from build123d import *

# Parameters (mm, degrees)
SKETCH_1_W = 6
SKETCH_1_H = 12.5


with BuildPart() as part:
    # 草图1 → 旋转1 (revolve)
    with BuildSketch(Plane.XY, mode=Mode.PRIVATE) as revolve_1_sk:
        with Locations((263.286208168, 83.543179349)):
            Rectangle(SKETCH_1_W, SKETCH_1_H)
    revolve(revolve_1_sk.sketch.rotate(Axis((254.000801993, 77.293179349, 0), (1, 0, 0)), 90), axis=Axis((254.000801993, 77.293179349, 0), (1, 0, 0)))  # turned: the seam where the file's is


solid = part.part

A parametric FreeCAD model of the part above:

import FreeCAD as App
import Part
import Sketcher
from FreeCAD import Vector
Q = App.Units.Quantity


def add_polygon(sketch, points):
    """Adds a closed chain of lines whose ends are joined by coincident constraints."""
    first, n = sketch.GeometryCount, len(points)
    for a, b in zip(points, points[1:] + points[:1]):
        sketch.addGeometry(Part.LineSegment(App.Vector(*a, 0), App.Vector(*b, 0)), False)
    for i in range(n):
        sketch.addConstraint(Sketcher.Constraint("Coincident", first + i, 2, first + (i + 1) % n, 1))

doc = App.newDocument("Part")
body = doc.addObject("PartDesign::Body", "Body")

# Sketch on XY plane
sketch1 = doc.addObject("Sketcher::SketchObject", "Sketch")
body.addObject(sketch1)
sketch1.AttachmentSupport = (doc.XY_Plane, [""])
sketch1.MapMode = "FlatFace"
add_polygon(sketch1, [(260, 90), (260, 77), (266, 77), (266, 90)])  # lines 0-3
sketch1.addGeometry(Part.LineSegment(Vector(260, 77, 0), Vector(266, 77, 0)), True)  # axis
sketch1.addConstraint([
    Sketcher.Constraint("Vertical", 0),
    Sketcher.Constraint("Horizontal", 1),
    Sketcher.Constraint("Vertical", 2),
    Sketcher.Constraint("Horizontal", 3),
    Sketcher.Constraint("Horizontal", 4),
    Sketcher.Constraint("Coincident", 4, 1, 0, 2),
    Sketcher.Constraint("Vertical", 2, 2, 4, 2),
    Sketcher.Constraint("DistanceX", 1, 1, 1, 2, Q("6 mm")),
    Sketcher.Constraint("DistanceY", 0, 2, 0, 1, Q("12.5 mm")),
    Sketcher.Constraint("DistanceX", -1, 1, 0, 2, Q("260.286208 mm")),
    Sketcher.Constraint("DistanceY", -1, 1, 0, 2, Q("77.293179 mm")),
])
revolution = doc.addObject("PartDesign::Revolution", "Revolution")
body.addObject(revolution)
revolution.Profile = sketch1
revolution.ReferenceAxis = (sketch1, ["Axis0"])
revolution.Angle = 360

doc.recompute()
